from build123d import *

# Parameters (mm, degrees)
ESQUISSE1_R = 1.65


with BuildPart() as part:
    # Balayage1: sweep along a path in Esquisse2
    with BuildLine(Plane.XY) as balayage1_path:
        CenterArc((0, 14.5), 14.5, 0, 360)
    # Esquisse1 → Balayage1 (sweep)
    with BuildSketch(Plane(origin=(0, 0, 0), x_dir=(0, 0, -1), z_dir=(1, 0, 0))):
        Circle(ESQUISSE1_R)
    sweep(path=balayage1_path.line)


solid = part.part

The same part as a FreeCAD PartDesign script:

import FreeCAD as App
import Part
import Sketcher

V = App.Vector

doc = App.newDocument("Part")
params = doc.addObject("Spreadsheet::Sheet", "Params")
for row, (alias, value) in enumerate([
    ("sketch1_diameter", "3.3 mm"),
    ("sketch2_diameter", "29 mm"),
], start=1):
    params.set(f"A{row}", alias)
    params.set(f"B{row}", "=" + value)
    params.setAlias(f"B{row}", alias)

body = doc.addObject("PartDesign::Body", "Body")

sketch1 = body.newObject("Sketcher::SketchObject", "Sketch")
sketch1.AttachmentSupport = (doc.getObject("YZ_Plane"), [""])
sketch1.MapMode = "FlatFace"
sketch1.addGeometry(Part.Circle(V(0, 0, 0), V(0, 0, 1), 1.6), False)
sketch1.addConstraint(Sketcher.Constraint("Coincident", 0, 3, -1, 1))
sketch1.addConstraint(Sketcher.Constraint("Diameter", 0, 3.3))
sketch1.setExpression("Constraints[1]", "Params.sketch1_diameter")

sketch2 = body.newObject("Sketcher::SketchObject", "Sketch001")
sketch2.AttachmentSupport = (doc.getObject("XY_Plane"), [""])
sketch2.MapMode = "FlatFace"
sketch2.addGeometry(Part.Circle(V(0, 14, 0), V(0, 0, 1), 14), False)
sketch2.addConstraint(Sketcher.Constraint("PointOnObject", 0, 3, -2))
sketch2.addConstraint(Sketcher.Constraint("Diameter", 0, 29.0))
sketch2.addConstraint(Sketcher.Constraint("DistanceY", -1, 1, 0, 3, 14.5))
sketch2.setExpression("Constraints[1]", "Params.sketch2_diameter")
doc.recompute()

additivepipe = body.newObject("PartDesign::AdditivePipe", "AdditivePipe")
additivepipe.Profile = sketch1
additivepipe.Spine = (sketch2, ["Edge1"])

doc.recompute()
